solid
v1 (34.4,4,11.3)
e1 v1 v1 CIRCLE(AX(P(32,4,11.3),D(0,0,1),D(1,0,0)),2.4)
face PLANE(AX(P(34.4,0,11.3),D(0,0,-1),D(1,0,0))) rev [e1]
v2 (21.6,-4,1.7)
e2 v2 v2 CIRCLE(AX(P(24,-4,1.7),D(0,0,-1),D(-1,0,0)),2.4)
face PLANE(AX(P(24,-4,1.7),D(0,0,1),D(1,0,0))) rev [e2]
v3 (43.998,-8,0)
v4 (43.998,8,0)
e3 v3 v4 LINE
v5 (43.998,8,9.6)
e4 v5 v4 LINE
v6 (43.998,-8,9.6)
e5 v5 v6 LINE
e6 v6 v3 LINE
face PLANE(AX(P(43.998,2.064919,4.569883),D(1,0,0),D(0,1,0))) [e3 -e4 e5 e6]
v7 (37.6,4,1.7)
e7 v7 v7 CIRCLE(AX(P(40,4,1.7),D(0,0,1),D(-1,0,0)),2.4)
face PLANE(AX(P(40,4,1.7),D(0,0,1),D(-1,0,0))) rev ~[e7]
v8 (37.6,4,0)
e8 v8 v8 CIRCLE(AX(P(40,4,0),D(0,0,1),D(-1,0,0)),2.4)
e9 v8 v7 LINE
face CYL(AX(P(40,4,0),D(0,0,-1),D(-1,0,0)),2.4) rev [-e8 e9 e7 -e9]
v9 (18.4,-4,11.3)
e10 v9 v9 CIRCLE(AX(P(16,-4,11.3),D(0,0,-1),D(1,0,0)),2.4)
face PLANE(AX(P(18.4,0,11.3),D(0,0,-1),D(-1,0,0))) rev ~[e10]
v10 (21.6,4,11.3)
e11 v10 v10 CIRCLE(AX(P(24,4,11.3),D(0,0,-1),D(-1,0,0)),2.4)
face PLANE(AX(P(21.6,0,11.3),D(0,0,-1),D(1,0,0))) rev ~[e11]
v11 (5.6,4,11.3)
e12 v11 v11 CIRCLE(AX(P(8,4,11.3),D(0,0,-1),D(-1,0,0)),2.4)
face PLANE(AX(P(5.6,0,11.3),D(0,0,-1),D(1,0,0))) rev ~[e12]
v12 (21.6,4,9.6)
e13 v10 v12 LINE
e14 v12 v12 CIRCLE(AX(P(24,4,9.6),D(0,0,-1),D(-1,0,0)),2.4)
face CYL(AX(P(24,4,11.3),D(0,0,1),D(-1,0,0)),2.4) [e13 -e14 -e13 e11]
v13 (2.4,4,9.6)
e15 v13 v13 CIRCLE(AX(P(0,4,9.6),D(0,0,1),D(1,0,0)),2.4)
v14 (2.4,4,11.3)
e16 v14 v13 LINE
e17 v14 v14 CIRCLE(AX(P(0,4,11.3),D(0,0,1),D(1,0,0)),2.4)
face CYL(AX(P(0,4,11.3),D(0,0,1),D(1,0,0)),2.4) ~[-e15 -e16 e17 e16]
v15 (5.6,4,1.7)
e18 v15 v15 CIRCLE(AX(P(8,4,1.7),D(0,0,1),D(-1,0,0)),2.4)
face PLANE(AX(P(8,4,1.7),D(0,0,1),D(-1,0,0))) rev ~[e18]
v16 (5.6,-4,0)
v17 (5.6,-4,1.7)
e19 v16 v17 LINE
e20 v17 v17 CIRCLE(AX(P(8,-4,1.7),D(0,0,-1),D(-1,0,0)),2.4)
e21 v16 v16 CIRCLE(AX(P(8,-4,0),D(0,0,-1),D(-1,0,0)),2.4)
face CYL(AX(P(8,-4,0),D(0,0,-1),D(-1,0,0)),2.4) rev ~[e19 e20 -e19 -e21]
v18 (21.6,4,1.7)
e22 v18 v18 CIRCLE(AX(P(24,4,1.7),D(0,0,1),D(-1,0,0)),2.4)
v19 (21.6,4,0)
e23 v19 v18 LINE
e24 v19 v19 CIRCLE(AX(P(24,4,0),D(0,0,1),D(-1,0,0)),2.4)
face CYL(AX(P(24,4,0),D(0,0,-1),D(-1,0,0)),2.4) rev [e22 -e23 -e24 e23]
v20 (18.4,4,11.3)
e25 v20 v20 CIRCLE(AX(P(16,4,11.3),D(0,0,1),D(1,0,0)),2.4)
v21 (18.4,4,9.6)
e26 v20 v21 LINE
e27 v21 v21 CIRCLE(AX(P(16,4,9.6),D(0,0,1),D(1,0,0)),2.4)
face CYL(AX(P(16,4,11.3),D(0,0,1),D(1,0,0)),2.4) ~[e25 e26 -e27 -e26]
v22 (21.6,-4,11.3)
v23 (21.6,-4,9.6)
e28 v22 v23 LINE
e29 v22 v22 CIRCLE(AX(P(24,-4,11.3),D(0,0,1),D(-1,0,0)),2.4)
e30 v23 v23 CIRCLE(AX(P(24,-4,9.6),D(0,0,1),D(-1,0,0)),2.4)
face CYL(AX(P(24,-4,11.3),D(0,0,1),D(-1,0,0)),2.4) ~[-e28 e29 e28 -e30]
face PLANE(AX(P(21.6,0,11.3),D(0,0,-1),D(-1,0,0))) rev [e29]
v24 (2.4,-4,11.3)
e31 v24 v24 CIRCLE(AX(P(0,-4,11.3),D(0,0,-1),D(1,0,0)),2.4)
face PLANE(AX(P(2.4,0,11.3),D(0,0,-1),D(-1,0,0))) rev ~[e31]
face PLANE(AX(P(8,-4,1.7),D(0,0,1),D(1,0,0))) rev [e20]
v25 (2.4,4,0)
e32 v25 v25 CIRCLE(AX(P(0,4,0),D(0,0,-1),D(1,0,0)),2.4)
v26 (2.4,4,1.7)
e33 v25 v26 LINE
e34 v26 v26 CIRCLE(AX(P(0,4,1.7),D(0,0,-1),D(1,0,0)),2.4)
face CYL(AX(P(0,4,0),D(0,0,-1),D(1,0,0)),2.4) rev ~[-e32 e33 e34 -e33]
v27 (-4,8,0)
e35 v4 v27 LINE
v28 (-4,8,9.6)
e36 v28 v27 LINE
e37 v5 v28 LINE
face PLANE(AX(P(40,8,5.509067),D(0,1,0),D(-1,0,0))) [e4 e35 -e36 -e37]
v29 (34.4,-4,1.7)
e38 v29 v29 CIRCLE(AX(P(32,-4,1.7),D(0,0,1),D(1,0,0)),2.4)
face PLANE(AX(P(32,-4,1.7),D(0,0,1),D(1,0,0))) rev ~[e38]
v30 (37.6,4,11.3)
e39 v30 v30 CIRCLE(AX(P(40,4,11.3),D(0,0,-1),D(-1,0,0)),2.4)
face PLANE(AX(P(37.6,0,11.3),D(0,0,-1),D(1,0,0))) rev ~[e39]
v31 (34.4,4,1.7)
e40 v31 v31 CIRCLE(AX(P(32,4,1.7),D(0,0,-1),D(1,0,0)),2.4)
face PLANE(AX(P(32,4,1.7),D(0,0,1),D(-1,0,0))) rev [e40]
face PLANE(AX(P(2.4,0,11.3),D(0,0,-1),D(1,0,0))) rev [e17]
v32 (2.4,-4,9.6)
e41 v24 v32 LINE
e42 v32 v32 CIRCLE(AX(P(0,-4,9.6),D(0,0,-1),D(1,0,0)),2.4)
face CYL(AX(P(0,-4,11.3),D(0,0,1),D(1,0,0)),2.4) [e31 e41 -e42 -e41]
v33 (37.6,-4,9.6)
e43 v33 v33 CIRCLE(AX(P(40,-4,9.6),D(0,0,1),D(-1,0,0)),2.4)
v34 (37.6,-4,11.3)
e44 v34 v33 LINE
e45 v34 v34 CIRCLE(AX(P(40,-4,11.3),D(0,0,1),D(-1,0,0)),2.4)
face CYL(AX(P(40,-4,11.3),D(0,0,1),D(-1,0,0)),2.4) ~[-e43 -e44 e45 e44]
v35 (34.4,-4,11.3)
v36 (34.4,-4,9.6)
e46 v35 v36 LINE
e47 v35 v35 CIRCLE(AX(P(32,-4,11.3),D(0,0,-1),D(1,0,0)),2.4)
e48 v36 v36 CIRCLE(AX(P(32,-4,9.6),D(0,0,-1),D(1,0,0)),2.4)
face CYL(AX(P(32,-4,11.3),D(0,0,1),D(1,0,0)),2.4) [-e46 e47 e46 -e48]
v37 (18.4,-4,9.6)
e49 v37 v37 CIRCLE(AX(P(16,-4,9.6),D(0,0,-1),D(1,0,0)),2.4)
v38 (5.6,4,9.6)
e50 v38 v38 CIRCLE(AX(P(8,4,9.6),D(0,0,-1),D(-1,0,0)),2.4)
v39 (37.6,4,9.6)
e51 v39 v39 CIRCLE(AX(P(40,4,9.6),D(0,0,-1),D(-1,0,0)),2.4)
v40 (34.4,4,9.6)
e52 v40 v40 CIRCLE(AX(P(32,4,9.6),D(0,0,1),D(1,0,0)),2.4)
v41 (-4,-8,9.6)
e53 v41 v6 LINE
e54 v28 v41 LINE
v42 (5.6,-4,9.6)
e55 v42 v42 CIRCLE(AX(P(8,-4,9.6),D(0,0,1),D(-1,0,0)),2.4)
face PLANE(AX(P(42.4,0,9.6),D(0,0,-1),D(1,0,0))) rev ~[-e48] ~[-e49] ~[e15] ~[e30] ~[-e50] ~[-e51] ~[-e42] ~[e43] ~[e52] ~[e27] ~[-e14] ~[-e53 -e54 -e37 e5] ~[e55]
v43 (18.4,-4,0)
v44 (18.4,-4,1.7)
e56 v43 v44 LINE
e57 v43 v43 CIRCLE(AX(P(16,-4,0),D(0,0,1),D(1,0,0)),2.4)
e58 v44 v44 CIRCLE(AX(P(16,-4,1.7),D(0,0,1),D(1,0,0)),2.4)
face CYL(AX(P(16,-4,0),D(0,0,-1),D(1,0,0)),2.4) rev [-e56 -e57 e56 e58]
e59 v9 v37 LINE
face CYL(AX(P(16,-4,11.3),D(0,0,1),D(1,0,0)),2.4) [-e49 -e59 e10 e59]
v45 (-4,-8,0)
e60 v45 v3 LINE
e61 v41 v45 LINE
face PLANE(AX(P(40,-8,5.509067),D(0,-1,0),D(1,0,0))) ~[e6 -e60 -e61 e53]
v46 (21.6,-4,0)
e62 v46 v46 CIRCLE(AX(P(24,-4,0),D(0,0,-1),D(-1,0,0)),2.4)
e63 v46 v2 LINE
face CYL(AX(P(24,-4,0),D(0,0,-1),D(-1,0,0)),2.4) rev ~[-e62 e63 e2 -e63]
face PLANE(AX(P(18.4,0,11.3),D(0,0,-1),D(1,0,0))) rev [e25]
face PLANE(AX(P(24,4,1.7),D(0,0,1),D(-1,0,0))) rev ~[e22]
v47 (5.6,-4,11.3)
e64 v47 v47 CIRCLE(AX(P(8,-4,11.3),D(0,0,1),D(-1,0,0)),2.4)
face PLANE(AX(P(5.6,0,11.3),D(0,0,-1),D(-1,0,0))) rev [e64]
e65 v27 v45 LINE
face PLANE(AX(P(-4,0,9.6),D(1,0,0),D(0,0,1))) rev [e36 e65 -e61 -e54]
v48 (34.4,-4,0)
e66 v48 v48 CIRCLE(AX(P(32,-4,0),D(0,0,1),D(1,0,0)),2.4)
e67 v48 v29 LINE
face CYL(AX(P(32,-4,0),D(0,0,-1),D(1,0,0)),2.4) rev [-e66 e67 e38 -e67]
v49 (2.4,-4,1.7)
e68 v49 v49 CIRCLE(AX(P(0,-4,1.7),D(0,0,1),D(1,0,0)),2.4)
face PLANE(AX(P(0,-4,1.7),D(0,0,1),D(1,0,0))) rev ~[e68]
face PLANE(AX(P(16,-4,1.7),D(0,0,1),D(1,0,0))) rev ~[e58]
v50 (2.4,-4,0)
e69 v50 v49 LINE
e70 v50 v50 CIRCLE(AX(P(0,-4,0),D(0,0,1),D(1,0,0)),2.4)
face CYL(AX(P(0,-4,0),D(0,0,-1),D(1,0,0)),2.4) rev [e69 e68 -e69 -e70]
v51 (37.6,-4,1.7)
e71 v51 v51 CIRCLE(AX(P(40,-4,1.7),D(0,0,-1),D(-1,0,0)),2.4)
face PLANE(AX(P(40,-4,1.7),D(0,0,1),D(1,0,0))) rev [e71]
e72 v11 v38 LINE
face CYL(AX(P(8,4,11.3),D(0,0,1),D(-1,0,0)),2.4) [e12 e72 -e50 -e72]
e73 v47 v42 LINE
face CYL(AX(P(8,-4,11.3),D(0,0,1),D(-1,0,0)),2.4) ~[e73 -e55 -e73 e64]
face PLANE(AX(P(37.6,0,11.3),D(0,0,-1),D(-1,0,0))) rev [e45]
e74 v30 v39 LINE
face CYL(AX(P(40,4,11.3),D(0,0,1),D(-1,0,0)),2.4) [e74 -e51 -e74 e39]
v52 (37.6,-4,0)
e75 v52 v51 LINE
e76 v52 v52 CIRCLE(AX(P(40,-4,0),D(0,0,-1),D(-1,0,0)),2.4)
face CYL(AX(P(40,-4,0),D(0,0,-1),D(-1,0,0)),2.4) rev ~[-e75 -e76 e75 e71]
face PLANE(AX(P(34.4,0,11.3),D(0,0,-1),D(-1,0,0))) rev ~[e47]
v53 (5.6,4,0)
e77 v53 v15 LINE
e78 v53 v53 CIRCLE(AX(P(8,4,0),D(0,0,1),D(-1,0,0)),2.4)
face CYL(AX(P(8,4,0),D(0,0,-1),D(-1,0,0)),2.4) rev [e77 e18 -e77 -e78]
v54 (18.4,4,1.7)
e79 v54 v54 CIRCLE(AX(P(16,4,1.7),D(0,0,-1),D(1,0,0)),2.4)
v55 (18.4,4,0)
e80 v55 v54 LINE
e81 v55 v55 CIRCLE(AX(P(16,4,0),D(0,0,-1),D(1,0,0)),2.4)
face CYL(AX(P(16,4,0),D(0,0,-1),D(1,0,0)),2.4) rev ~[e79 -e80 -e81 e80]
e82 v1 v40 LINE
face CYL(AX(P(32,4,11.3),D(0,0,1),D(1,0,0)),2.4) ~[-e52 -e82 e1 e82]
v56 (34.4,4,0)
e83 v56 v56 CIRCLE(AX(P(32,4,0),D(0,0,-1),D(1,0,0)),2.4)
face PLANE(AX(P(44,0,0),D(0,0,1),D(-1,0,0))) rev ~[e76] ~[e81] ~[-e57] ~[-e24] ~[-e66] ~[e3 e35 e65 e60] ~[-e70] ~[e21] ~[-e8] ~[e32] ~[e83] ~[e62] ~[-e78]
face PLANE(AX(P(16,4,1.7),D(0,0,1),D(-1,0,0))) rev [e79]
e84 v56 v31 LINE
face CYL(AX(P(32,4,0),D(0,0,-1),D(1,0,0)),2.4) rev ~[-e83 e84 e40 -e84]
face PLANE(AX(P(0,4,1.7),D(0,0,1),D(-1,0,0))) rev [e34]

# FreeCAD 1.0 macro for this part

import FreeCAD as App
import Part
import Sketcher
from FreeCAD import Vector


def add_polygon(sketch, points):
    """Adds a closed chain of lines whose ends are joined by coincident constraints."""
    first, n = sketch.GeometryCount, len(points)
    for a, b in zip(points, points[1:] + points[:1]):
        sketch.addGeometry(Part.LineSegment(App.Vector(*a, 0), App.Vector(*b, 0)), False)
    for i in range(n):
        sketch.addConstraint(Sketcher.Constraint("Coincident", first + i, 2, first + (i + 1) % n, 1))

doc = App.newDocument("Part")
params = doc.addObject("Spreadsheet::Sheet", "Params")
for row, (alias, value) in enumerate([
    ("sketch1_width", "8 mm"),
    ("sketch1_width2", "1.6 mm"),
    ("sketch1_height", "9.6 mm"),
    ("sketch1_height2", "1.7 mm"),
    ("pad1_length", "8 mm"),
    ("sketch2_diameter", "4.8 mm"),
    ("sketch2_width", "8 mm"),
    ("pocket1_length", "1.7 mm"),
    ("sketch3_diameter", "4.8 mm"),
    ("pocket2_length", "1.7 mm"),
    ("pocket3_length", "16.002 mm"),
], start=1):
    params.set(f"A{row}", alias)
    params.set(f"B{row}", "=" + value)
    params.setAlias(f"B{row}", alias)

body = doc.addObject("PartDesign::Body", "Body")

# Sketch on XZ plane
sketch1 = body.newObject("Sketcher::SketchObject", "Sketch")
sketch1.AttachmentSupport = (doc.getObject("XZ_Plane"), [""])
sketch1.MapMode = "FlatFace"
add_polygon(sketch1, [(-2.4, 9.6), (-4, 9.6), (-4, 0), (4, 0), (4, 9.6), (2.4, 9.6), (2.4, 11.3), (-2.4, 11.3)])  # lines 0-7
sketch1.addConstraint([
    Sketcher.Constraint("Horizontal", 0),
    Sketcher.Constraint("Vertical", 1),
    Sketcher.Constraint("Horizontal", 2),
    Sketcher.Constraint("Vertical", 3),
    Sketcher.Constraint("Horizontal", 4),
    Sketcher.Constraint("Vertical", 5),
    Sketcher.Constraint("Horizontal", 6),
    Sketcher.Constraint("Vertical", 7),
    Sketcher.Constraint("Symmetric", 1, 2, 2, 2, -1, 1),
    Sketcher.Constraint("Symmetric", 4, 2, 7, 2, -2),
    Sketcher.Constraint("DistanceX", 2, 1, 2, 2, 8.0),
    Sketcher.Constraint("DistanceX", 0, 2, 0, 1, 1.6),
    Sketcher.Constraint("DistanceY", 1, 2, 1, 1, 9.6),
    Sketcher.Constraint("DistanceY", 5, 1, 5, 2, 1.7),
])
sketch1.setExpression("Constraints[18]", "Params.sketch1_width")
sketch1.setExpression("Constraints[19]", "Params.sketch1_width2")
sketch1.setExpression("Constraints[20]", "Params.sketch1_height")
sketch1.setExpression("Constraints[21]", "Params.sketch1_height2")
pad1 = body.newObject("PartDesign::Pad", "Pad")
pad1.Profile = sketch1
pad1.setExpression("Length", "Params.pad1_length")

# Sketch on XY plane
sketch2 = body.newObject("Sketcher::SketchObject", "Sketch001")
sketch2.AttachmentSupport = (doc.getObject("XY_Plane"), [""])
sketch2.MapMode = "FlatFace"
sketch2.AttachmentOffset = App.Placement(Vector(0, 0, 11.3), App.Rotation())
add_polygon(sketch2, [(-4, 0), (-4, -8), (4, -8), (4, 0)])  # lines 0-3
sketch2.addGeometry(Part.Circle(Vector(0, -4, 0), Vector(0, 0, 1), 2.4), False)  # 4
sketch2.addConstraint([
    Sketcher.Constraint("Vertical", 0),
    Sketcher.Constraint("Horizontal", 1),
    Sketcher.Constraint("Vertical", 2),
    Sketcher.Constraint("Horizontal", 3),
    Sketcher.Constraint("Symmetric", 2, 2, 3, 2, -1, 1),
    Sketcher.Constraint("PointOnObject", 4, 3, -2),
    Sketcher.Constraint("Equal", 3, 0),
    Sketcher.Constraint("Diameter", 4, 4.8),
    Sketcher.Constraint("DistanceX", 1, 1, 1, 2, 8.0),
    Sketcher.Constraint("DistanceY", 4, 3, -1, 1, 4.0),
])
sketch2.setExpression("Constraints[11]", "Params.sketch2_diameter")
sketch2.setExpression("Constraints[12]", "Params.sketch2_width")
pocket1 = body.newObject("PartDesign::Pocket", "Pocket")
pocket1.Profile = sketch2
pocket1.setExpression("Length", "Params.pocket1_length")

# Sketch on XY plane
sketch3 = body.newObject("Sketcher::SketchObject", "Sketch002")
sketch3.AttachmentSupport = (doc.getObject("XY_Plane"), [""])
sketch3.MapMode = "FlatFace"
sketch3.addGeometry(Part.Circle(Vector(0, -4, 0), Vector(0, 0, 1), 2.4), False)
sketch3.addConstraint([
    Sketcher.Constraint("PointOnObject", 0, 3, -2),
    Sketcher.Constraint("Diameter", 0, 4.8),
    Sketcher.Constraint("DistanceY", 0, 3, -1, 1, 4.0),
])
sketch3.setExpression("Constraints[1]", "Params.sketch3_diameter")
pocket2 = body.newObject("PartDesign::Pocket", "Pocket001")
pocket2.Profile = sketch3
pocket2.setExpression("Length", "Params.pocket2_length")
pocket2.Reversed = True
body2 = doc.addObject("PartDesign::Body", "Body001")
doc.recompute()

body2.BaseFeature = body
doc.recompute()

mirroring = doc.addObject("Part::Mirroring", "Mirroring")
mirroring.Source = body
mirroring.Base = Vector(4, 0, 0)
mirroring.Normal = Vector(1, 0, 0)
body3 = doc.addObject("PartDesign::Body", "Body002")
body3.BaseFeature = mirroring
boolean = body2.newObject("PartDesign::Boolean", "Boolean")
boolean.Type = "Fuse"
boolean.addObjects([body3])
doc.recompute()
body4 = doc.addObject("PartDesign::Body", "Body003")
doc.recompute()

body4.BaseFeature = body2
doc.recompute()

mirroring2 = doc.addObject("Part::Mirroring", "Mirroring001")
mirroring2.Source = body2
mirroring2.Base = Vector(0, 0, 0)
mirroring2.Normal = Vector(0, -1, 0)
body5 = doc.addObject("PartDesign::Body", "Body004")
body5.BaseFeature = mirroring2
boolean2 = body4.newObject("PartDesign::Boolean", "Boolean001")
boolean2.Type = "Fuse"
boolean2.addObjects([body5])
doc.recompute()
body6 = doc.addObject("PartDesign::Body", "Body005")
doc.recompute()

body6.BaseFeature = body4
doc.recompute()

mirroring3 = doc.addObject("Part::Mirroring", "Mirroring002")
mirroring3.Source = body4
mirroring3.Base = Vector(12, 0, 0)
mirroring3.Normal = Vector(1, 0, 0)
body7 = doc.addObject("PartDesign::Body", "Body006")
body7.BaseFeature = mirroring3
boolean3 = body6.newObject("PartDesign::Boolean", "Boolean002")
boolean3.Type = "Fuse"
boolean3.addObjects([body7])
doc.recompute()
body8 = doc.addObject("PartDesign::Body", "Body007")
doc.recompute()

body8.BaseFeature = body6
doc.recompute()

mirroring4 = doc.addObject("Part::Mirroring", "Mirroring003")
mirroring4.Source = body6
mirroring4.Base = Vector(28, 0, 4.8)
mirroring4.Normal = Vector(1, 0, 0)
body9 = doc.addObject("PartDesign::Body", "Body008")
body9.BaseFeature = mirroring4
boolean4 = body8.newObject("PartDesign::Boolean", "Boolean003")
boolean4.Type = "Fuse"
boolean4.addObjects([body9])
doc.recompute()

# Sketch on YZ plane
sketch4 = body8.newObject("Sketcher::SketchObject", "Sketch003")
sketch4.AttachmentSupport = (doc.getObject("YZ_Plane007"), [""])
sketch4.MapMode = "FlatFace"
sketch4.AttachmentOffset = App.Placement(Vector(0, 0, 60), App.Rotation())
add_polygon(sketch4, [(-15, 17), (-15, -8), (19, -8), (19, 17)])  # lines 0-3
sketch4.addConstraint([
    Sketcher.Constraint("Vertical", 0),
    Sketcher.Constraint("Horizontal", 1),
    Sketcher.Constraint("Vertical", 2),
    Sketcher.Constraint("Horizontal", 3),
    Sketcher.Constraint("DistanceY", 0, 2, 0, 1, 24.257371),
    Sketcher.Constraint("DistanceX", 1, 1, 1, 2, 33.309247),
    Sketcher.Constraint("DistanceY", -1, 1, 2, 2, 16.698569),
    Sketcher.Constraint("DistanceX", 0, 2, -1, 1, 14.589705),
])
pocket3 = body8.newObject("PartDesign::Pocket", "Pocket002")
pocket3.Profile = sketch4
pocket3.setExpression("Length", "Params.pocket3_length")
mirroring.Visibility = False
mirroring2.Visibility = False
mirroring3.Visibility = False
mirroring4.Visibility = False

doc.recompute()
